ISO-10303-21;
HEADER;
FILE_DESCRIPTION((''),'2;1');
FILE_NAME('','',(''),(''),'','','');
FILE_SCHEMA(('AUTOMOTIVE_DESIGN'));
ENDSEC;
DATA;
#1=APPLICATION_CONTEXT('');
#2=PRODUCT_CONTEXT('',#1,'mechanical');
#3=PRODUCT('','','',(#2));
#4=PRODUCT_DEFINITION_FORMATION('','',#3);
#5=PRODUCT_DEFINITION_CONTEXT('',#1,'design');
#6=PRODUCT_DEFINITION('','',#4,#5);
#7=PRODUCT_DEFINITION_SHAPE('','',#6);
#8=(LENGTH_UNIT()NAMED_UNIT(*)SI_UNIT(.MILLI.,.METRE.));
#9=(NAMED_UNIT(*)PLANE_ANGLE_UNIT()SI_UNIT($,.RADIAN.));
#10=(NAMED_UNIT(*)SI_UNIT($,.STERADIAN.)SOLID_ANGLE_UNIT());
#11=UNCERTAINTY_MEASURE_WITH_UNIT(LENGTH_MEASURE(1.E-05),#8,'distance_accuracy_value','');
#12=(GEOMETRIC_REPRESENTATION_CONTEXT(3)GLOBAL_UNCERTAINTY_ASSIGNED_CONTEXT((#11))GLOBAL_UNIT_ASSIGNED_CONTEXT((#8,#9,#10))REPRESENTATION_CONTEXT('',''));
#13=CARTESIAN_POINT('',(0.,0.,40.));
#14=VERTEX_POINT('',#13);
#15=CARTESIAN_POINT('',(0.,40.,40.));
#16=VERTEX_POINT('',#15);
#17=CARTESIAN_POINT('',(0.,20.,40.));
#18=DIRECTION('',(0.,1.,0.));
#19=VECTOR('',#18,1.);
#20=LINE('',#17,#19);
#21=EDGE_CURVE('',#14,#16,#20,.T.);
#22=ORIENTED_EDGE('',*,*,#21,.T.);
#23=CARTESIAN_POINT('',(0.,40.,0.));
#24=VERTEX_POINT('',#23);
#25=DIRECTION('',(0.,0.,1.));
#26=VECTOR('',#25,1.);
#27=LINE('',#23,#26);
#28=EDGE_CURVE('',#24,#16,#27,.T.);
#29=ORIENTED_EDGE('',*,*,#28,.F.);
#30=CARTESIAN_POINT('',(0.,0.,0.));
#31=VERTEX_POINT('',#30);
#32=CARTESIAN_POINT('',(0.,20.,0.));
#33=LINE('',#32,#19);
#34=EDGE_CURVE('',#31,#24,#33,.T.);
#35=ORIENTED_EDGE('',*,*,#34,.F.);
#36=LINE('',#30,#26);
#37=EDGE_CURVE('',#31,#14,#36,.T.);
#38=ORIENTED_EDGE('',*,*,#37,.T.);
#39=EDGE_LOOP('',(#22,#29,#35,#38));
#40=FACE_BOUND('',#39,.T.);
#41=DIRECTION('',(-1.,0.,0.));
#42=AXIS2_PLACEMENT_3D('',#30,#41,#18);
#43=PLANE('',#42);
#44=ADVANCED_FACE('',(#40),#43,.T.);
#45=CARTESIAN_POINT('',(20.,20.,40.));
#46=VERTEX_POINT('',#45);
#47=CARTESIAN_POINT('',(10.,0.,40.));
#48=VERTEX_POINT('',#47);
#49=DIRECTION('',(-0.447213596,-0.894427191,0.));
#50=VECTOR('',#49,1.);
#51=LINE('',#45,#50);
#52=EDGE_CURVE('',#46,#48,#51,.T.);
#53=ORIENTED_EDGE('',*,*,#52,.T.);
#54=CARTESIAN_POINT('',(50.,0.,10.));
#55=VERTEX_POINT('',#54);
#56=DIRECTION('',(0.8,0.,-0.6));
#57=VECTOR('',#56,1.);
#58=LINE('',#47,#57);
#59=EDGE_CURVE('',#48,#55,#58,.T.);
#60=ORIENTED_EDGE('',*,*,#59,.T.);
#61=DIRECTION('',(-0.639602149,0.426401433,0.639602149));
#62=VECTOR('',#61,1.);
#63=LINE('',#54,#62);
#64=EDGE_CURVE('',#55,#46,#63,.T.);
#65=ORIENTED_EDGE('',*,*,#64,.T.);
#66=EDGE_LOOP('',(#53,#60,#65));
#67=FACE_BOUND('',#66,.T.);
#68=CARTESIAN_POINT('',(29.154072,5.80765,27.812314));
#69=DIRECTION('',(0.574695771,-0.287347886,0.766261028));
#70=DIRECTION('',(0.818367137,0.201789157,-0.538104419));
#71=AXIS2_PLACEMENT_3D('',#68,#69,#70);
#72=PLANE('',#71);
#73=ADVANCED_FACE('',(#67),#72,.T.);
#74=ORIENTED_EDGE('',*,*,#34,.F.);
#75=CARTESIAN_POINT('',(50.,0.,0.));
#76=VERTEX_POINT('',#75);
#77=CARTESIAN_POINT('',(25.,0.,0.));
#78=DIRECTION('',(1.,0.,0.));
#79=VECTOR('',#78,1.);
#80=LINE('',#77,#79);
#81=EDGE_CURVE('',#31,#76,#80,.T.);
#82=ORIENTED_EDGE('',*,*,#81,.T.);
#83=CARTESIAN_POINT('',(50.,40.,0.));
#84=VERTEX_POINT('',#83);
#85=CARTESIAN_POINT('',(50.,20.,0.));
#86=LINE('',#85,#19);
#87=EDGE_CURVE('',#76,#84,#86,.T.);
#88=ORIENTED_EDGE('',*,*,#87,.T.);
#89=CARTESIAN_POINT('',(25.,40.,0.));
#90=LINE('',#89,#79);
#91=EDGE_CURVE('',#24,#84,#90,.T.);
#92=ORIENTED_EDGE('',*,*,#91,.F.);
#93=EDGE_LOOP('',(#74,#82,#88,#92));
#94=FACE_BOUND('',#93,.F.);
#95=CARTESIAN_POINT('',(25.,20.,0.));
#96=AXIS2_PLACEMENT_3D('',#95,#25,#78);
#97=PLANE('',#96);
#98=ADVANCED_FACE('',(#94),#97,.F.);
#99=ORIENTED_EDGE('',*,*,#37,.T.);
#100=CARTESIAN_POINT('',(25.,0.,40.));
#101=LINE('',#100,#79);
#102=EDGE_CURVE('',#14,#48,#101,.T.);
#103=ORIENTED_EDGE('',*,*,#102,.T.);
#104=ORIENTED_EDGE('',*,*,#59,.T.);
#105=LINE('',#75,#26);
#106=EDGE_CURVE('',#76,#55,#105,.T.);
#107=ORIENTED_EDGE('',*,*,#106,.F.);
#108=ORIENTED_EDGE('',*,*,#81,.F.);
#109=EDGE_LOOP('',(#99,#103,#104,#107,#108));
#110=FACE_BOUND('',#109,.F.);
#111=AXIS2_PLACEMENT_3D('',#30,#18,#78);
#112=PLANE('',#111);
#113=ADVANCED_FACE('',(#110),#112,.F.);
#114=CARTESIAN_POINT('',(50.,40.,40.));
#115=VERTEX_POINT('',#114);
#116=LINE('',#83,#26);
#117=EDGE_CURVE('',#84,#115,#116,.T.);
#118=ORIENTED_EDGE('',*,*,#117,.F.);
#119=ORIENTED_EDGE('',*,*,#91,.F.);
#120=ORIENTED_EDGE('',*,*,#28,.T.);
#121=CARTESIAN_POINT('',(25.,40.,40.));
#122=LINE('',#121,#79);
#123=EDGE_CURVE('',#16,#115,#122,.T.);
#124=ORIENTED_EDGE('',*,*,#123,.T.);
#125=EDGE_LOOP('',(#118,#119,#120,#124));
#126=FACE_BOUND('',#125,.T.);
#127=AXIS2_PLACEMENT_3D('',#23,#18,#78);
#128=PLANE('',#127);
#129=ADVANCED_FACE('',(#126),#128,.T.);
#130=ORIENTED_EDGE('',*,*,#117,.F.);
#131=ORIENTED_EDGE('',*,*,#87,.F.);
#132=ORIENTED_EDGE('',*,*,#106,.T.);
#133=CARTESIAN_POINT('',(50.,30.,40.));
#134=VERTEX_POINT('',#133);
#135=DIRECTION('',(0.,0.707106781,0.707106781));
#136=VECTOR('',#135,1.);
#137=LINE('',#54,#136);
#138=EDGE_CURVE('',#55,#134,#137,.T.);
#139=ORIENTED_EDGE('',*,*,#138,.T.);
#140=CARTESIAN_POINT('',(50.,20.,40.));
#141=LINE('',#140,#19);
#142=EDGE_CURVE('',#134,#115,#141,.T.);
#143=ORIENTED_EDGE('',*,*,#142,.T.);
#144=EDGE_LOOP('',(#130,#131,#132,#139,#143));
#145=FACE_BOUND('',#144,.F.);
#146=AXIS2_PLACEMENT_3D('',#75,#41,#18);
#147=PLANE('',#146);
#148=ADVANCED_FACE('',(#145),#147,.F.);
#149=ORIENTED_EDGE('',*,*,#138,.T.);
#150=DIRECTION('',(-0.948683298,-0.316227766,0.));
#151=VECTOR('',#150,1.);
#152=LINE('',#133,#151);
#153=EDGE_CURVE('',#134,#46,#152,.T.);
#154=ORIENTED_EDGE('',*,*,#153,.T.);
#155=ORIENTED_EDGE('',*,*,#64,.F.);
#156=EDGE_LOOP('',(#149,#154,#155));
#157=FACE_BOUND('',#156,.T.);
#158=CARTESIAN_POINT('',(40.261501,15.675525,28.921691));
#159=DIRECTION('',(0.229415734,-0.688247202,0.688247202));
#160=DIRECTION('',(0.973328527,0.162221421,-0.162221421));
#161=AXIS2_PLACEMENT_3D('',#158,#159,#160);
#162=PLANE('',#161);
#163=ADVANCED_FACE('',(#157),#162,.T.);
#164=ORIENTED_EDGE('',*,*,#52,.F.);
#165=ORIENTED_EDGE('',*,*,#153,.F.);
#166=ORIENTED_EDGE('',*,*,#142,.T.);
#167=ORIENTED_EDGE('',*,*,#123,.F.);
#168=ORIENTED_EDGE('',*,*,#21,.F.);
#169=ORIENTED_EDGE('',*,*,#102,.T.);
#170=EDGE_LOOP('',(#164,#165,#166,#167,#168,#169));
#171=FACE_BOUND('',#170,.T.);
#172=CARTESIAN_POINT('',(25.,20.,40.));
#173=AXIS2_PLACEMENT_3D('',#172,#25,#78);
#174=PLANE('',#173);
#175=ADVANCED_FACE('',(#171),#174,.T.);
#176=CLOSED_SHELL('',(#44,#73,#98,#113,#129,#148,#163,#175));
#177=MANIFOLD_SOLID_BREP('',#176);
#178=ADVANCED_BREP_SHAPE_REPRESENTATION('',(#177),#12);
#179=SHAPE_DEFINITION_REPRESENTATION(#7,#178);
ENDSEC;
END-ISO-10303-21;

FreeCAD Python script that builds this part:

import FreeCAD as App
import Part
import Sketcher

V = App.Vector


def add_polygon(sketch, points):
    """Adds a closed chain of lines whose ends are joined by coincident constraints."""
    first, n = sketch.GeometryCount, len(points)
    for a, b in zip(points, points[1:] + points[:1]):
        sketch.addGeometry(Part.LineSegment(App.Vector(*a, 0), App.Vector(*b, 0)), False)
    for i in range(n):
        sketch.addConstraint(Sketcher.Constraint("Coincident", first + i, 2, first + (i + 1) % n, 1))

doc = App.newDocument("Part")
body = doc.addObject("PartDesign::Body", "Body")

sketch1 = body.newObject("Sketcher::SketchObject", "Sketch")
sketch1.AttachmentSupport = (doc.getObject("XY_Plane"), [""])
sketch1.MapMode = "FlatFace"
add_polygon(sketch1, [(0, 40), (0, 0), (50, 0), (50, 40)])
sketch1.addConstraint([
    Sketcher.Constraint("Vertical", 0),
    Sketcher.Constraint("Horizontal", 1),
    Sketcher.Constraint("Vertical", 2),
    Sketcher.Constraint("Horizontal", 3),
    Sketcher.Constraint("Coincident", 0, 2, -1, 1),
    Sketcher.Constraint("DistanceX", 1, 1, 1, 2, 50.0),
    Sketcher.Constraint("DistanceY", 0, 2, 0, 1, 40.0),
])
pad1 = body.newObject("PartDesign::Pad", "Pad")
pad1.Profile = sketch1
pad1.Length = 40

sketch2 = body.newObject("Sketcher::SketchObject", "Sketch001")
sketch2.Placement = App.Placement(V(20.917431, -10.458716, 27.889908), App.Rotation(V(0.818367137, 0.201789157, -0.538104419), V(0, 0.936329178, 0.351123442), V(0.574695771, -0.287347886, 0.766261028), "ZXY"))
add_polygon(sketch2, [(-1, 33), (-13, 14), (36, 4)])
sketch2.addConstraint([
    Sketcher.Constraint("Distance", 1, 50.0),
    Sketcher.Constraint("Distance", 0, 22.36068),
    Sketcher.Constraint("DistanceX", 2, 2, -1, 1, 1.121051),
    Sketcher.Constraint("DistanceY", -1, 1, 2, 2, 32.771521),
    Sketcher.Constraint("DistanceX", 0, 2, 1, 2, 48.877818),
    Sketcher.Constraint("Distance", 2, 46.904158),
])
pocket1 = body.newObject("PartDesign::Pocket", "Pocket")
pocket1.Profile = sketch2
pocket1.Type = "ThroughAll"
pocket1.Reversed = True

sketch3 = body.newObject("Sketcher::SketchObject", "Sketch002")
sketch3.Placement = App.Placement(V(4.210526, -12.631579, 12.631579), App.Rotation(V(0.973328527, 0.162221421, -0.162221421), V(0, 0.707106782, 0.707106782), V(0.229415734, -0.688247202, 0.688247202), "ZXY"))
add_polygon(sketch3, [(47, 49), (16, 42), (47, 7)])
sketch3.addConstraint([
    Sketcher.Constraint("Vertical", 2),
    Sketcher.Constraint("DistanceY", 2, 1, 2, 2, 42.426407),
    Sketcher.Constraint("DistanceX", 0, 2, 1, 2, 30.82207),
    Sketcher.Constraint("DistanceY", 1, 2, 0, 2, 35.355339),
    Sketcher.Constraint("DistanceX", -1, 1, 0, 2, 16.222142),
    Sketcher.Constraint("DistanceY", -1, 1, 0, 2, 42.426407),
])
pocket2 = body.newObject("PartDesign::Pocket", "Pocket001")
pocket2.Profile = sketch3
pocket2.Type = "ThroughAll"
pocket2.Reversed = True

doc.recompute()
